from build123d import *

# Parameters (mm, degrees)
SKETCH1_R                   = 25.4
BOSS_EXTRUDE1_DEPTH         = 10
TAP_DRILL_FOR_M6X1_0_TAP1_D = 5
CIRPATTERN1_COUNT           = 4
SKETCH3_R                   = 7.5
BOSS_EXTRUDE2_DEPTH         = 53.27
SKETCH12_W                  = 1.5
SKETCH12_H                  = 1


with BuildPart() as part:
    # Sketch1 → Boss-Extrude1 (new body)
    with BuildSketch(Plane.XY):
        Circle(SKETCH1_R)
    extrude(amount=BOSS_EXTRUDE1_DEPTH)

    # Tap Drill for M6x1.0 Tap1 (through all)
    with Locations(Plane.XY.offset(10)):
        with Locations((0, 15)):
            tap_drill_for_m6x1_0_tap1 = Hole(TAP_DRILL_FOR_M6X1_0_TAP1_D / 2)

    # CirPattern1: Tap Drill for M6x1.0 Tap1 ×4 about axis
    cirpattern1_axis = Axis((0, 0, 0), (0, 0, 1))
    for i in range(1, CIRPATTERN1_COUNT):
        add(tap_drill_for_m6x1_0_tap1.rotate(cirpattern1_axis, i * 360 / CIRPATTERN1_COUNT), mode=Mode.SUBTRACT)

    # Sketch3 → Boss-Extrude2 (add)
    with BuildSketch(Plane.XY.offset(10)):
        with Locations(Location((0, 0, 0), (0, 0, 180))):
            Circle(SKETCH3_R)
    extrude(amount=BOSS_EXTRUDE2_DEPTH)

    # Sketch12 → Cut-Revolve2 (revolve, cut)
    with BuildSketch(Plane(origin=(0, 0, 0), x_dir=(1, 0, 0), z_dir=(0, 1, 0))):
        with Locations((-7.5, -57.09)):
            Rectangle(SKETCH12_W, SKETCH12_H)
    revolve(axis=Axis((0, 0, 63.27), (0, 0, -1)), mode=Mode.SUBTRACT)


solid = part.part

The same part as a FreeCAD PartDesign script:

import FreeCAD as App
import Part
import Sketcher
from FreeCAD import Vector
Q = App.Units.Quantity


def add_polygon(sketch, points):
    """Adds a closed chain of lines whose ends are joined by coincident constraints."""
    first, n = sketch.GeometryCount, len(points)
    for a, b in zip(points, points[1:] + points[:1]):
        sketch.addGeometry(Part.LineSegment(App.Vector(*a, 0), App.Vector(*b, 0)), False)
    for i in range(n):
        sketch.addConstraint(Sketcher.Constraint("Coincident", first + i, 2, first + (i + 1) % n, 1))

doc = App.newDocument("Part")
body = doc.addObject("PartDesign::Body", "Body")

# Sketch on XY plane
sketch1 = doc.addObject("Sketcher::SketchObject", "Sketch")
body.addObject(sketch1)
sketch1.AttachmentSupport = (doc.XY_Plane, [""])
sketch1.MapMode = "FlatFace"
sketch1.addGeometry(Part.Circle(Vector(0, 0, 0), Vector(0, 0, 1), 25), False)
sketch1.addConstraint([
    Sketcher.Constraint("Coincident", 0, 3, -1, 1),
    Sketcher.Constraint("Diameter", 0, Q("50.8 mm")),
])
pad1 = doc.addObject("PartDesign::Pad", "Pad")
body.addObject(pad1)
pad1.Profile = sketch1
pad1.Length = 10

# Sketch on XY plane
sketch2 = doc.addObject("Sketcher::SketchObject", "Sketch001")
body.addObject(sketch2)
sketch2.AttachmentSupport = (doc.XY_Plane, [""])
sketch2.MapMode = "FlatFace"
sketch2.AttachmentOffset = App.Placement(Vector(0, 0, 10), App.Rotation())
sketch2.addGeometry(Part.Circle(Vector(0, 15, 0), Vector(0, 0, 1), 2.5), False)
sketch2.addConstraint([
    Sketcher.Constraint("PointOnObject", 0, 3, -2),
    Sketcher.Constraint("Diameter", 0, Q("5 mm")),
    Sketcher.Constraint("DistanceY", -1, 1, 0, 3, Q("15 mm")),
])
doc.recompute()
hole = doc.addObject("PartDesign::Hole", "Hole")
body.addObject(hole)
hole.Profile = sketch2
hole.ThreadType = "None"
hole.Diameter = 5
hole.DepthType = "ThroughAll"
doc.recompute()

polarpattern = doc.addObject("PartDesign::PolarPattern", "PolarPattern")
body.addObject(polarpattern)
polarpattern.Originals = [hole]
polarpattern.Axis = (doc.Z_Axis, [""])
polarpattern.Angle = 360
polarpattern.Occurrences = 4
body.Tip = polarpattern

# Sketch on XY plane
sketch3 = doc.addObject("Sketcher::SketchObject", "Sketch002")
body.addObject(sketch3)
sketch3.AttachmentSupport = (doc.XY_Plane, [""])
sketch3.MapMode = "FlatFace"
sketch3.AttachmentOffset = App.Placement(Vector(0, 0, 10), App.Rotation())
sketch3.addGeometry(Part.Circle(Vector(0, 0, 0), Vector(0, 0, 1), 8), False)
sketch3.addConstraint([
    Sketcher.Constraint("Coincident", 0, 3, -1, 1),
    Sketcher.Constraint("Diameter", 0, Q("15 mm")),
])
pad2 = doc.addObject("PartDesign::Pad", "Pad001")
body.addObject(pad2)
pad2.Profile = sketch3
pad2.Length = 53.27

# Sketch on XZ plane
sketch4 = doc.addObject("Sketcher::SketchObject", "Sketch003")
body.addObject(sketch4)
sketch4.AttachmentSupport = (doc.XZ_Plane, [""])
sketch4.MapMode = "FlatFace"
add_polygon(sketch4, [(-8.2, 56.6), (-8.2, 57.6), (-6.8, 57.6), (-6.8, 56.6)])  # lines 0-3
sketch4.addConstraint([
    Sketcher.Constraint("Vertical", 0),
    Sketcher.Constraint("Horizontal", 1),
    Sketcher.Constraint("Vertical", 2),
    Sketcher.Constraint("Horizontal", 3),
    Sketcher.Constraint("DistanceY", 0, 1, 0, 2, Q("1 mm")),
    Sketcher.Constraint("DistanceX", 1, 1, 1, 2, Q("1.5 mm")),
    Sketcher.Constraint("DistanceX", 0, 2, -1, 1, Q("8.25 mm")),
    Sketcher.Constraint("DistanceY", -1, 1, 0, 2, Q("57.59 mm")),
])
groove = doc.addObject("PartDesign::Groove", "Groove")
body.addObject(groove)
groove.Profile = sketch4
groove.ReferenceAxis = (sketch4, ["V_Axis"])
groove.Angle = 360

doc.recompute()
